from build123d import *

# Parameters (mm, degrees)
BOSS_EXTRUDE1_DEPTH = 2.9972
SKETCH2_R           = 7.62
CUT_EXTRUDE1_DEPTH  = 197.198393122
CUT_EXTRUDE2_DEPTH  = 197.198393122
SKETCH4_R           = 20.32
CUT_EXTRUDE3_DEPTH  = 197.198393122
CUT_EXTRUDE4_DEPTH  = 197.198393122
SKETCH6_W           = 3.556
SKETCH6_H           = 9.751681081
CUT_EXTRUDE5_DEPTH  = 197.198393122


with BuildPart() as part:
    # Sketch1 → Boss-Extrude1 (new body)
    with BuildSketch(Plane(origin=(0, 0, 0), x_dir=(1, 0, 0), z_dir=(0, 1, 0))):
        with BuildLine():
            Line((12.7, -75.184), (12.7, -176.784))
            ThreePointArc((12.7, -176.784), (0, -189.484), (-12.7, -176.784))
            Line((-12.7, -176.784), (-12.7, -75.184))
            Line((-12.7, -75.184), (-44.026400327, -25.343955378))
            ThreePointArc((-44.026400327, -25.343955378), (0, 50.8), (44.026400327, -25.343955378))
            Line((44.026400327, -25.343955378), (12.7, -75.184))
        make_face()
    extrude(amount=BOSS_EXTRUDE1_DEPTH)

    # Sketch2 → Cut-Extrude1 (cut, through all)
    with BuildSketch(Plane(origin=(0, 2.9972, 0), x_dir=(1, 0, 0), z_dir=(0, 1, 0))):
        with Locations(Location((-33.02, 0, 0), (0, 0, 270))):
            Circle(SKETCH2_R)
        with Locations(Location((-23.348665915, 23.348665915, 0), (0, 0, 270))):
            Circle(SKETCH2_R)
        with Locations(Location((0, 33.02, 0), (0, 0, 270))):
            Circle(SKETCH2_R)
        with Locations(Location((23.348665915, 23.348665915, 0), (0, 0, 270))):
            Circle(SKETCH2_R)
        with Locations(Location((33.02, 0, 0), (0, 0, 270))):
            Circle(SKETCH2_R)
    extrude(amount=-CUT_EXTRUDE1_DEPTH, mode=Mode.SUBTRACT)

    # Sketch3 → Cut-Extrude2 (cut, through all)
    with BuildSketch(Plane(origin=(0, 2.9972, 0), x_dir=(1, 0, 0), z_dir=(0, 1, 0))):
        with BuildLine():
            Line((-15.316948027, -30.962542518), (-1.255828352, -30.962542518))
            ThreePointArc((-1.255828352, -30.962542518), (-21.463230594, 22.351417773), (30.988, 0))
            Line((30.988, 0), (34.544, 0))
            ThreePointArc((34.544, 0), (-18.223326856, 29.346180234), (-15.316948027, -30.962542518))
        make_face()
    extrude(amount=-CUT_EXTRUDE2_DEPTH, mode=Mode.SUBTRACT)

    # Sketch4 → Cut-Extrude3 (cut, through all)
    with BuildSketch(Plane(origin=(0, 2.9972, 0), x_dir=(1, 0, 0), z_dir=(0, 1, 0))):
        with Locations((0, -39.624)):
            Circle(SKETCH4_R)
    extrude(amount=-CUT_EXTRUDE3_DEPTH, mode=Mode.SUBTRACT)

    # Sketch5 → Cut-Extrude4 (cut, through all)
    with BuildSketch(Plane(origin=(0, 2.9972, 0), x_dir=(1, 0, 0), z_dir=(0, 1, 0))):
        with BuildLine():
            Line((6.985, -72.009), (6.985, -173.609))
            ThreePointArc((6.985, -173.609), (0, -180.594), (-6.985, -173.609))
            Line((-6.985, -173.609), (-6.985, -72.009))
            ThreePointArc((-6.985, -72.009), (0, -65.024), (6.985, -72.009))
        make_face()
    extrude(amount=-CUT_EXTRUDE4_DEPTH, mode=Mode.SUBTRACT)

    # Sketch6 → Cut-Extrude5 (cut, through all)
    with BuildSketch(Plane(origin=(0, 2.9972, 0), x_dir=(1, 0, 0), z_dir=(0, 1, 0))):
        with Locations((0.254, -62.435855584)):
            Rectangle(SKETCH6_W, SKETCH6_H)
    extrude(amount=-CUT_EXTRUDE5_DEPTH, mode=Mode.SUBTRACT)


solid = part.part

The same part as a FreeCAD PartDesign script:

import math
import FreeCAD as App
import Part
import Sketcher
Q = App.Units.Quantity


def add_polygon(sketch, points):
    """Adds a closed chain of lines whose ends are joined by coincident constraints."""
    first, n = sketch.GeometryCount, len(points)
    for a, b in zip(points, points[1:] + points[:1]):
        sketch.addGeometry(Part.LineSegment(App.Vector(*a, 0), App.Vector(*b, 0)), False)
    for i in range(n):
        sketch.addConstraint(Sketcher.Constraint("Coincident", first + i, 2, first + (i + 1) % n, 1))

doc = App.newDocument("Part")
params = doc.addObject("Spreadsheet::Sheet", "Params")
for row, (alias, value) in enumerate([
    ("sketch1_radius", "2 in"),
    ("sketch1_radius2", "0.5 in"),
    ("sketch1_height", "4 in"),
    ("pad1_length", "0.118 in"),
    ("sketch2_diameter", "0.6 in"),
    ("sketch3_radius", "1.22 in"),
    ("sketch3_radius2", "1.36 in"),
    ("sketch4_diameter", "1.6 in"),
    ("sketch5_height", "4 in"),
    ("sketch5_radius", "0.275 in"),
    ("sketch6_width", "0.14 in"),
], start=1):
    params.set(f"A{row}", alias)
    params.set(f"B{row}", "=" + value)
    params.setAlias(f"B{row}", alias)

body = doc.addObject("PartDesign::Body", "Body")

# Sketch on XZ plane
sketch1 = body.newObject("Sketcher::SketchObject", "Sketch")
sketch1.AttachmentSupport = (doc.getObject("XZ_Plane"), [""])
sketch1.MapMode = "FlatFace"
sketch1.addGeometry([
    Part.LineSegment(App.Vector(13, 177, 0), App.Vector(13, 75, 0)),  # 0
    Part.LineSegment(App.Vector(13, 75, 0), App.Vector(44, 25, 0)),  # 1
    Part.ArcOfCircle(Part.Circle(App.Vector(0, 0, 0), App.Vector(0, 0, 1), 51), math.radians(150), math.radians(390)),  # 2
    Part.LineSegment(App.Vector(-44, 25, 0), App.Vector(-13, 75, 0)),  # 3
    Part.LineSegment(App.Vector(-13, 75, 0), App.Vector(-13, 177, 0)),  # 4
    Part.ArcOfCircle(Part.Circle(App.Vector(0, 177, 0), App.Vector(0, 0, 1), 13), math.radians(0), math.radians(180)),  # 5
], False)
sketch1.addConstraint([
    Sketcher.Constraint("Coincident", 0, 2, 1, 1),
    Sketcher.Constraint("Coincident", 1, 2, 2, 2),
    Sketcher.Constraint("Coincident", 2, 1, 3, 1),
    Sketcher.Constraint("Coincident", 3, 2, 4, 1),
    Sketcher.Constraint("Tangent", 4, 2, 5, 2),
    Sketcher.Constraint("Tangent", 5, 1, 0, 1),
    Sketcher.Constraint("Vertical", 0),
    Sketcher.Constraint("Vertical", 4),
    Sketcher.Constraint("Coincident", 2, 3, -1, 1),
    Sketcher.Constraint("Symmetric", 0, 2, 3, 2, -2),
    Sketcher.Constraint("Horizontal", 1, 2, 2, 1),
    Sketcher.Constraint("Radius", 2, Q("2 in")),
    Sketcher.Constraint("Radius", 5, Q("0.5 in")),
    Sketcher.Constraint("DistanceY", 0, 2, 0, 1, Q("4 in")),
    Sketcher.Constraint("DistanceY", -1, 1, 5, 3, Q("6.96 in")),
    Sketcher.Constraint("DistanceX", -1, 1, 1, 2, 44.0264),
])
sketch1.setExpression("Constraints[11]", "Params.sketch1_radius")
sketch1.setExpression("Constraints[12]", "Params.sketch1_radius2")
sketch1.setExpression("Constraints[13]", "Params.sketch1_height")
pad1 = body.newObject("PartDesign::Pad", "Pad")
pad1.Profile = sketch1
pad1.setExpression("Length", "Params.pad1_length")
pad1.Reversed = True

# Sketch on XZ plane
sketch2 = body.newObject("Sketcher::SketchObject", "Sketch001")
sketch2.AttachmentSupport = (doc.getObject("XZ_Plane"), [""])
sketch2.MapMode = "FlatFace"
sketch2.AttachmentOffset = App.Placement(App.Vector(0, 0, -0.118 * 25.4), App.Rotation())
sketch2.addGeometry([
    Part.Circle(App.Vector(-33, 0, 0), App.Vector(0, 0, 1), 8),  # 0
    Part.Circle(App.Vector(-23, -23, 0), App.Vector(0, 0, 1), 8),  # 1
    Part.Circle(App.Vector(0, -33, 0), App.Vector(0, 0, 1), 8),  # 2
    Part.Circle(App.Vector(23, -23, 0), App.Vector(0, 0, 1), 8),  # 3
    Part.Circle(App.Vector(33, 0, 0), App.Vector(0, 0, 1), 8),  # 4
], False)
sketch2.addConstraint([
    Sketcher.Constraint("Equal", 0, 1),
    Sketcher.Constraint("Equal", 1, 2),
    Sketcher.Constraint("Equal", 2, 3),
    Sketcher.Constraint("Equal", 3, 4),
    Sketcher.Constraint("Symmetric", 0, 3, 4, 3, -1, 1),
    Sketcher.Constraint("Symmetric", 1, 3, 3, 3, -2),
    Sketcher.Constraint("PointOnObject", 0, 3, -1),
    Sketcher.Constraint("PointOnObject", 2, 3, -2),
    Sketcher.Constraint("Diameter", 0, Q("0.6 in")),
    Sketcher.Constraint("DistanceX", 0, 3, -1, 1, Q("1.3 in")),
    Sketcher.Constraint("DistanceY", 2, 3, -1, 1, Q("1.3 in")),
    Sketcher.Constraint("DistanceX", 1, 3, 3, 3, 46.697332),
    Sketcher.Constraint("DistanceY", 1, 3, -1, 1, 23.348666),
])
sketch2.setExpression("Constraints[8]", "Params.sketch2_diameter")
pocket1 = body.newObject("PartDesign::Pocket", "Pocket")
pocket1.Profile = sketch2
pocket1.Type = "ThroughAll"
pocket1.Reversed = True

# Sketch on XZ plane
sketch3 = body.newObject("Sketcher::SketchObject", "Sketch002")
sketch3.AttachmentSupport = (doc.getObject("XZ_Plane"), [""])
sketch3.MapMode = "FlatFace"
sketch3.AttachmentOffset = App.Placement(App.Vector(0, 0, -0.118 * 25.4), App.Rotation())
sketch3.addGeometry([
    Part.LineSegment(App.Vector(-15.3, 31, 0), App.Vector(-1.3, 31, 0)),
    Part.ArcOfCircle(Part.Circle(App.Vector(0, 0, 0), App.Vector(0, 0, 1), 31), math.radians(92), math.radians(360)),
    Part.LineSegment(App.Vector(31, 0, 0), App.Vector(34.5, 0, 0)),
    Part.ArcOfCircle(Part.Circle(App.Vector(0, 0, 0), App.Vector(0, 0, 1), 34.5), math.radians(116), math.radians(360)),
], False)
sketch3.addConstraint([
    Sketcher.Constraint("Coincident", 0, 2, 1, 1),
    Sketcher.Constraint("Coincident", 1, 2, 2, 1),
    Sketcher.Constraint("Coincident", 2, 2, 3, 2),
    Sketcher.Constraint("Coincident", 3, 1, 0, 1),
    Sketcher.Constraint("Horizontal", 0),
    Sketcher.Constraint("Horizontal", 2),
    Sketcher.Constraint("Coincident", 1, 3, -1, 1),
    Sketcher.Constraint("Coincident", 3, 3, -1, 1),
    Sketcher.Constraint("PointOnObject", 1, 2, -1),
    Sketcher.Constraint("Radius", 1, Q("1.22 in")),
    Sketcher.Constraint("Radius", 3, Q("1.36 in")),
    Sketcher.Constraint("DistanceX", 0, 1, 0, 2, 14.06112),
])
sketch3.setExpression("Constraints[9]", "Params.sketch3_radius")
sketch3.setExpression("Constraints[10]", "Params.sketch3_radius2")
pocket2 = body.newObject("PartDesign::Pocket", "Pocket001")
pocket2.Profile = sketch3
pocket2.Type = "ThroughAll"
pocket2.Reversed = True

# Sketch on XZ plane
sketch4 = body.newObject("Sketcher::SketchObject", "Sketch003")
sketch4.AttachmentSupport = (doc.getObject("XZ_Plane"), [""])
sketch4.MapMode = "FlatFace"
sketch4.AttachmentOffset = App.Placement(App.Vector(0, 0, -0.118 * 25.4), App.Rotation())
sketch4.addGeometry(Part.Circle(App.Vector(0, 40, 0), App.Vector(0, 0, 1), 20), False)
sketch4.addConstraint([
    Sketcher.Constraint("PointOnObject", 0, 3, -2),
    Sketcher.Constraint("Diameter", 0, Q("1.6 in")),
    Sketcher.Constraint("DistanceY", -1, 1, 0, 3, Q("1.56 in")),
])
sketch4.setExpression("Constraints[1]", "Params.sketch4_diameter")
pocket3 = body.newObject("PartDesign::Pocket", "Pocket002")
pocket3.Profile = sketch4
pocket3.Type = "ThroughAll"
pocket3.Reversed = True

# Sketch on XZ plane
sketch5 = body.newObject("Sketcher::SketchObject", "Sketch004")
sketch5.AttachmentSupport = (doc.getObject("XZ_Plane"), [""])
sketch5.MapMode = "FlatFace"
sketch5.AttachmentOffset = App.Placement(App.Vector(0, 0, -0.118 * 25.4), App.Rotation())
sketch5.addGeometry([
    Part.LineSegment(App.Vector(7, 174, 0), App.Vector(7, 72, 0)),
    Part.ArcOfCircle(Part.Circle(App.Vector(0, 72, 0), App.Vector(0, 0, 1), 7), math.radians(180), math.radians(360)),
    Part.LineSegment(App.Vector(-7, 72, 0), App.Vector(-7, 174, 0)),
    Part.ArcOfCircle(Part.Circle(App.Vector(0, 174, 0), App.Vector(0, 0, 1), 7), math.radians(0), math.radians(180)),
], False)
sketch5.addConstraint([
    Sketcher.Constraint("Tangent", 0, 2, 1, 2),
    Sketcher.Constraint("Tangent", 1, 1, 2, 1),
    Sketcher.Constraint("Tangent", 2, 2, 3, 2),
    Sketcher.Constraint("Tangent", 3, 1, 0, 1),
    Sketcher.Constraint("Vertical", 0),
    Sketcher.Constraint("Vertical", 2),
    Sketcher.Constraint("PointOnObject", 1, 3, -2),
    Sketcher.Constraint("DistanceY", 0, 2, 0, 1, Q("4 in")),
    Sketcher.Constraint("Radius", 1, Q("0.275 in")),
    Sketcher.Constraint("DistanceY", -1, 1, 1, 3, Q("2.835 in")),
])
sketch5.setExpression("Constraints[7]", "Params.sketch5_height")
sketch5.setExpression("Constraints[8]", "Params.sketch5_radius")
pocket4 = body.newObject("PartDesign::Pocket", "Pocket003")
pocket4.Profile = sketch5
pocket4.Type = "ThroughAll"
pocket4.Reversed = True

# Sketch on XZ plane
sketch6 = body.newObject("Sketcher::SketchObject", "Sketch005")
sketch6.AttachmentSupport = (doc.getObject("XZ_Plane"), [""])
sketch6.MapMode = "FlatFace"
sketch6.AttachmentOffset = App.Placement(App.Vector(0, 0, -0.118 * 25.4), App.Rotation())
add_polygon(sketch6, [(-1.5, 57.6), (-1.5, 67.3), (2, 67.3), (2, 57.6)])  # lines 0-3
sketch6.addConstraint([
    Sketcher.Constraint("Vertical", 0),
    Sketcher.Constraint("Horizontal", 1),
    Sketcher.Constraint("Vertical", 2),
    Sketcher.Constraint("Horizontal", 3),
    Sketcher.Constraint("DistanceX", 1, 1, 1, 2, Q("0.14 in")),
    Sketcher.Constraint("DistanceX", 0, 2, -1, 1, Q("0.06 in")),
    Sketcher.Constraint("DistanceY", 0, 1, 0, 2, 9.751681),
    Sketcher.Constraint("DistanceY", -1, 1, 0, 2, 67.311696),
])
sketch6.setExpression("Constraints[8]", "Params.sketch6_width")
pocket5 = body.newObject("PartDesign::Pocket", "Pocket004")
pocket5.Profile = sketch6
pocket5.Type = "ThroughAll"
pocket5.Reversed = True

doc.recompute()
